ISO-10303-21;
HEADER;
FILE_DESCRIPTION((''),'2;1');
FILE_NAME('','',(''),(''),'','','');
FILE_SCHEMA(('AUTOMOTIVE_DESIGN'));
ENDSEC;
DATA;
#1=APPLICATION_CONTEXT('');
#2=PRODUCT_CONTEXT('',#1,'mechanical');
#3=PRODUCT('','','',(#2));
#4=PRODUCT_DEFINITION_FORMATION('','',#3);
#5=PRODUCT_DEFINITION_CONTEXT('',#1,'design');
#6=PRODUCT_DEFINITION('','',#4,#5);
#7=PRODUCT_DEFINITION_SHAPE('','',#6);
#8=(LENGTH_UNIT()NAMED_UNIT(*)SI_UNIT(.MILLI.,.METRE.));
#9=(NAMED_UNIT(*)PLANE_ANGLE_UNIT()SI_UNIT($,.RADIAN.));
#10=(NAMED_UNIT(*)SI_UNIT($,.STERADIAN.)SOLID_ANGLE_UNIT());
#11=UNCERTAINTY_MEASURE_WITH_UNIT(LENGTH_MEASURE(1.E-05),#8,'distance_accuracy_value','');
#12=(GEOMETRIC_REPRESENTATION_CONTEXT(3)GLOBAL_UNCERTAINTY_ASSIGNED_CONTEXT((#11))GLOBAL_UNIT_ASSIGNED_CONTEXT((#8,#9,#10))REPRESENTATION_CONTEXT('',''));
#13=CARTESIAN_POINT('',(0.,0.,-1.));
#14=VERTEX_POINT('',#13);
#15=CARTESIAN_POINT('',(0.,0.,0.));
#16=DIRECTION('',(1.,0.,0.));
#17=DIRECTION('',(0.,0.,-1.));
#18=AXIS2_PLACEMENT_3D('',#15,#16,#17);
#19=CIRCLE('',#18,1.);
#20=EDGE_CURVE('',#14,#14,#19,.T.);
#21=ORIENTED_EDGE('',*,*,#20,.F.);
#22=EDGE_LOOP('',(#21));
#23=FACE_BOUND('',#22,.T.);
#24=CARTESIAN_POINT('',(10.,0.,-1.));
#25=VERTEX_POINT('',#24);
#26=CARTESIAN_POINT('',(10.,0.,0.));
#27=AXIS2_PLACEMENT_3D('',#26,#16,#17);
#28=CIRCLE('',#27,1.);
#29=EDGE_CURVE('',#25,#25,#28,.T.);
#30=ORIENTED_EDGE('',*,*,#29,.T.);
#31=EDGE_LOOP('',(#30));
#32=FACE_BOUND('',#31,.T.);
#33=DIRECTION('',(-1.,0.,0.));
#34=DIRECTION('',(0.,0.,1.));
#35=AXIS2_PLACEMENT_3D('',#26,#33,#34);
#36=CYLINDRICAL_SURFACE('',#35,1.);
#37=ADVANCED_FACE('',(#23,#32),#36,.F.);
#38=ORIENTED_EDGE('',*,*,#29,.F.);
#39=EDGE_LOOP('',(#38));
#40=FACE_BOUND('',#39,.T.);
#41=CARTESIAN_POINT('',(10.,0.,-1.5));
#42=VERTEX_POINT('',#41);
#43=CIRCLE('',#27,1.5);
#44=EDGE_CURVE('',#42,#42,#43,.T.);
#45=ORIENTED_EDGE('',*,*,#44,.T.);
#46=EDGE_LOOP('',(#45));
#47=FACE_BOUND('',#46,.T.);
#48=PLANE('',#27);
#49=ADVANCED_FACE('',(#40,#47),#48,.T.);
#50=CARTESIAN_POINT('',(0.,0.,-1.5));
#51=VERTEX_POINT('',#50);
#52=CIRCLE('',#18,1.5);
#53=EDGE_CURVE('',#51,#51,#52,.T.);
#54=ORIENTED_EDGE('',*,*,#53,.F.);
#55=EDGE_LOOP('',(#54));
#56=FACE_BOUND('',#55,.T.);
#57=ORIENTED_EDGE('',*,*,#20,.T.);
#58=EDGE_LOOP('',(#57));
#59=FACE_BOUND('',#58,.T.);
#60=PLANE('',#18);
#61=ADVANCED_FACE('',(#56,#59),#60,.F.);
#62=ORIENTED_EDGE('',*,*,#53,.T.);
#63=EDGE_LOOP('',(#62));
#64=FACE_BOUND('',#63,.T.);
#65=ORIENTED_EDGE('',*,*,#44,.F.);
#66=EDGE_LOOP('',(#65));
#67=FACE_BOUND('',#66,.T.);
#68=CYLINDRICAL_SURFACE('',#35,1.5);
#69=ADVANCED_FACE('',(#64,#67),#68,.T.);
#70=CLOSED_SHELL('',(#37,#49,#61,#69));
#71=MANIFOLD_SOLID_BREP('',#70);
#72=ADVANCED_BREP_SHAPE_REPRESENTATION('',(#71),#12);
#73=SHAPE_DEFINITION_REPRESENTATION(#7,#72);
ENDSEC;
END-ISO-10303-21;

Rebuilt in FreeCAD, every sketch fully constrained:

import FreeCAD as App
import Part
import Sketcher

V = App.Vector
Q = App.Units.Quantity

doc = App.newDocument("Part")
body = doc.addObject("PartDesign::Body", "Body")

sketch1 = body.newObject("Sketcher::SketchObject", "Sketch")
sketch1.AttachmentSupport = (doc.getObject("YZ_Plane"), [""])
sketch1.MapMode = "FlatFace"
sketch1.addGeometry(Part.Circle(V(0, 0, 0), V(0, 0, 1), 1.5), False)
sketch1.addGeometry(Part.Circle(V(0, 0, 0), V(0, 0, 1), 1), False)
sketch1.addConstraint(Sketcher.Constraint("Coincident", 0, 3, -1, 1))
sketch1.addConstraint(Sketcher.Constraint("Coincident", 1, 3, -1, 1))
sketch1.addConstraint(Sketcher.Constraint("Diameter", 0, Q("3 mm")))
sketch1.addConstraint(Sketcher.Constraint("Diameter", 1, Q("2 mm")))
pad1 = body.newObject("PartDesign::Pad", "Pad")
pad1.Profile = sketch1
pad1.Length = 10

doc.recompute()
